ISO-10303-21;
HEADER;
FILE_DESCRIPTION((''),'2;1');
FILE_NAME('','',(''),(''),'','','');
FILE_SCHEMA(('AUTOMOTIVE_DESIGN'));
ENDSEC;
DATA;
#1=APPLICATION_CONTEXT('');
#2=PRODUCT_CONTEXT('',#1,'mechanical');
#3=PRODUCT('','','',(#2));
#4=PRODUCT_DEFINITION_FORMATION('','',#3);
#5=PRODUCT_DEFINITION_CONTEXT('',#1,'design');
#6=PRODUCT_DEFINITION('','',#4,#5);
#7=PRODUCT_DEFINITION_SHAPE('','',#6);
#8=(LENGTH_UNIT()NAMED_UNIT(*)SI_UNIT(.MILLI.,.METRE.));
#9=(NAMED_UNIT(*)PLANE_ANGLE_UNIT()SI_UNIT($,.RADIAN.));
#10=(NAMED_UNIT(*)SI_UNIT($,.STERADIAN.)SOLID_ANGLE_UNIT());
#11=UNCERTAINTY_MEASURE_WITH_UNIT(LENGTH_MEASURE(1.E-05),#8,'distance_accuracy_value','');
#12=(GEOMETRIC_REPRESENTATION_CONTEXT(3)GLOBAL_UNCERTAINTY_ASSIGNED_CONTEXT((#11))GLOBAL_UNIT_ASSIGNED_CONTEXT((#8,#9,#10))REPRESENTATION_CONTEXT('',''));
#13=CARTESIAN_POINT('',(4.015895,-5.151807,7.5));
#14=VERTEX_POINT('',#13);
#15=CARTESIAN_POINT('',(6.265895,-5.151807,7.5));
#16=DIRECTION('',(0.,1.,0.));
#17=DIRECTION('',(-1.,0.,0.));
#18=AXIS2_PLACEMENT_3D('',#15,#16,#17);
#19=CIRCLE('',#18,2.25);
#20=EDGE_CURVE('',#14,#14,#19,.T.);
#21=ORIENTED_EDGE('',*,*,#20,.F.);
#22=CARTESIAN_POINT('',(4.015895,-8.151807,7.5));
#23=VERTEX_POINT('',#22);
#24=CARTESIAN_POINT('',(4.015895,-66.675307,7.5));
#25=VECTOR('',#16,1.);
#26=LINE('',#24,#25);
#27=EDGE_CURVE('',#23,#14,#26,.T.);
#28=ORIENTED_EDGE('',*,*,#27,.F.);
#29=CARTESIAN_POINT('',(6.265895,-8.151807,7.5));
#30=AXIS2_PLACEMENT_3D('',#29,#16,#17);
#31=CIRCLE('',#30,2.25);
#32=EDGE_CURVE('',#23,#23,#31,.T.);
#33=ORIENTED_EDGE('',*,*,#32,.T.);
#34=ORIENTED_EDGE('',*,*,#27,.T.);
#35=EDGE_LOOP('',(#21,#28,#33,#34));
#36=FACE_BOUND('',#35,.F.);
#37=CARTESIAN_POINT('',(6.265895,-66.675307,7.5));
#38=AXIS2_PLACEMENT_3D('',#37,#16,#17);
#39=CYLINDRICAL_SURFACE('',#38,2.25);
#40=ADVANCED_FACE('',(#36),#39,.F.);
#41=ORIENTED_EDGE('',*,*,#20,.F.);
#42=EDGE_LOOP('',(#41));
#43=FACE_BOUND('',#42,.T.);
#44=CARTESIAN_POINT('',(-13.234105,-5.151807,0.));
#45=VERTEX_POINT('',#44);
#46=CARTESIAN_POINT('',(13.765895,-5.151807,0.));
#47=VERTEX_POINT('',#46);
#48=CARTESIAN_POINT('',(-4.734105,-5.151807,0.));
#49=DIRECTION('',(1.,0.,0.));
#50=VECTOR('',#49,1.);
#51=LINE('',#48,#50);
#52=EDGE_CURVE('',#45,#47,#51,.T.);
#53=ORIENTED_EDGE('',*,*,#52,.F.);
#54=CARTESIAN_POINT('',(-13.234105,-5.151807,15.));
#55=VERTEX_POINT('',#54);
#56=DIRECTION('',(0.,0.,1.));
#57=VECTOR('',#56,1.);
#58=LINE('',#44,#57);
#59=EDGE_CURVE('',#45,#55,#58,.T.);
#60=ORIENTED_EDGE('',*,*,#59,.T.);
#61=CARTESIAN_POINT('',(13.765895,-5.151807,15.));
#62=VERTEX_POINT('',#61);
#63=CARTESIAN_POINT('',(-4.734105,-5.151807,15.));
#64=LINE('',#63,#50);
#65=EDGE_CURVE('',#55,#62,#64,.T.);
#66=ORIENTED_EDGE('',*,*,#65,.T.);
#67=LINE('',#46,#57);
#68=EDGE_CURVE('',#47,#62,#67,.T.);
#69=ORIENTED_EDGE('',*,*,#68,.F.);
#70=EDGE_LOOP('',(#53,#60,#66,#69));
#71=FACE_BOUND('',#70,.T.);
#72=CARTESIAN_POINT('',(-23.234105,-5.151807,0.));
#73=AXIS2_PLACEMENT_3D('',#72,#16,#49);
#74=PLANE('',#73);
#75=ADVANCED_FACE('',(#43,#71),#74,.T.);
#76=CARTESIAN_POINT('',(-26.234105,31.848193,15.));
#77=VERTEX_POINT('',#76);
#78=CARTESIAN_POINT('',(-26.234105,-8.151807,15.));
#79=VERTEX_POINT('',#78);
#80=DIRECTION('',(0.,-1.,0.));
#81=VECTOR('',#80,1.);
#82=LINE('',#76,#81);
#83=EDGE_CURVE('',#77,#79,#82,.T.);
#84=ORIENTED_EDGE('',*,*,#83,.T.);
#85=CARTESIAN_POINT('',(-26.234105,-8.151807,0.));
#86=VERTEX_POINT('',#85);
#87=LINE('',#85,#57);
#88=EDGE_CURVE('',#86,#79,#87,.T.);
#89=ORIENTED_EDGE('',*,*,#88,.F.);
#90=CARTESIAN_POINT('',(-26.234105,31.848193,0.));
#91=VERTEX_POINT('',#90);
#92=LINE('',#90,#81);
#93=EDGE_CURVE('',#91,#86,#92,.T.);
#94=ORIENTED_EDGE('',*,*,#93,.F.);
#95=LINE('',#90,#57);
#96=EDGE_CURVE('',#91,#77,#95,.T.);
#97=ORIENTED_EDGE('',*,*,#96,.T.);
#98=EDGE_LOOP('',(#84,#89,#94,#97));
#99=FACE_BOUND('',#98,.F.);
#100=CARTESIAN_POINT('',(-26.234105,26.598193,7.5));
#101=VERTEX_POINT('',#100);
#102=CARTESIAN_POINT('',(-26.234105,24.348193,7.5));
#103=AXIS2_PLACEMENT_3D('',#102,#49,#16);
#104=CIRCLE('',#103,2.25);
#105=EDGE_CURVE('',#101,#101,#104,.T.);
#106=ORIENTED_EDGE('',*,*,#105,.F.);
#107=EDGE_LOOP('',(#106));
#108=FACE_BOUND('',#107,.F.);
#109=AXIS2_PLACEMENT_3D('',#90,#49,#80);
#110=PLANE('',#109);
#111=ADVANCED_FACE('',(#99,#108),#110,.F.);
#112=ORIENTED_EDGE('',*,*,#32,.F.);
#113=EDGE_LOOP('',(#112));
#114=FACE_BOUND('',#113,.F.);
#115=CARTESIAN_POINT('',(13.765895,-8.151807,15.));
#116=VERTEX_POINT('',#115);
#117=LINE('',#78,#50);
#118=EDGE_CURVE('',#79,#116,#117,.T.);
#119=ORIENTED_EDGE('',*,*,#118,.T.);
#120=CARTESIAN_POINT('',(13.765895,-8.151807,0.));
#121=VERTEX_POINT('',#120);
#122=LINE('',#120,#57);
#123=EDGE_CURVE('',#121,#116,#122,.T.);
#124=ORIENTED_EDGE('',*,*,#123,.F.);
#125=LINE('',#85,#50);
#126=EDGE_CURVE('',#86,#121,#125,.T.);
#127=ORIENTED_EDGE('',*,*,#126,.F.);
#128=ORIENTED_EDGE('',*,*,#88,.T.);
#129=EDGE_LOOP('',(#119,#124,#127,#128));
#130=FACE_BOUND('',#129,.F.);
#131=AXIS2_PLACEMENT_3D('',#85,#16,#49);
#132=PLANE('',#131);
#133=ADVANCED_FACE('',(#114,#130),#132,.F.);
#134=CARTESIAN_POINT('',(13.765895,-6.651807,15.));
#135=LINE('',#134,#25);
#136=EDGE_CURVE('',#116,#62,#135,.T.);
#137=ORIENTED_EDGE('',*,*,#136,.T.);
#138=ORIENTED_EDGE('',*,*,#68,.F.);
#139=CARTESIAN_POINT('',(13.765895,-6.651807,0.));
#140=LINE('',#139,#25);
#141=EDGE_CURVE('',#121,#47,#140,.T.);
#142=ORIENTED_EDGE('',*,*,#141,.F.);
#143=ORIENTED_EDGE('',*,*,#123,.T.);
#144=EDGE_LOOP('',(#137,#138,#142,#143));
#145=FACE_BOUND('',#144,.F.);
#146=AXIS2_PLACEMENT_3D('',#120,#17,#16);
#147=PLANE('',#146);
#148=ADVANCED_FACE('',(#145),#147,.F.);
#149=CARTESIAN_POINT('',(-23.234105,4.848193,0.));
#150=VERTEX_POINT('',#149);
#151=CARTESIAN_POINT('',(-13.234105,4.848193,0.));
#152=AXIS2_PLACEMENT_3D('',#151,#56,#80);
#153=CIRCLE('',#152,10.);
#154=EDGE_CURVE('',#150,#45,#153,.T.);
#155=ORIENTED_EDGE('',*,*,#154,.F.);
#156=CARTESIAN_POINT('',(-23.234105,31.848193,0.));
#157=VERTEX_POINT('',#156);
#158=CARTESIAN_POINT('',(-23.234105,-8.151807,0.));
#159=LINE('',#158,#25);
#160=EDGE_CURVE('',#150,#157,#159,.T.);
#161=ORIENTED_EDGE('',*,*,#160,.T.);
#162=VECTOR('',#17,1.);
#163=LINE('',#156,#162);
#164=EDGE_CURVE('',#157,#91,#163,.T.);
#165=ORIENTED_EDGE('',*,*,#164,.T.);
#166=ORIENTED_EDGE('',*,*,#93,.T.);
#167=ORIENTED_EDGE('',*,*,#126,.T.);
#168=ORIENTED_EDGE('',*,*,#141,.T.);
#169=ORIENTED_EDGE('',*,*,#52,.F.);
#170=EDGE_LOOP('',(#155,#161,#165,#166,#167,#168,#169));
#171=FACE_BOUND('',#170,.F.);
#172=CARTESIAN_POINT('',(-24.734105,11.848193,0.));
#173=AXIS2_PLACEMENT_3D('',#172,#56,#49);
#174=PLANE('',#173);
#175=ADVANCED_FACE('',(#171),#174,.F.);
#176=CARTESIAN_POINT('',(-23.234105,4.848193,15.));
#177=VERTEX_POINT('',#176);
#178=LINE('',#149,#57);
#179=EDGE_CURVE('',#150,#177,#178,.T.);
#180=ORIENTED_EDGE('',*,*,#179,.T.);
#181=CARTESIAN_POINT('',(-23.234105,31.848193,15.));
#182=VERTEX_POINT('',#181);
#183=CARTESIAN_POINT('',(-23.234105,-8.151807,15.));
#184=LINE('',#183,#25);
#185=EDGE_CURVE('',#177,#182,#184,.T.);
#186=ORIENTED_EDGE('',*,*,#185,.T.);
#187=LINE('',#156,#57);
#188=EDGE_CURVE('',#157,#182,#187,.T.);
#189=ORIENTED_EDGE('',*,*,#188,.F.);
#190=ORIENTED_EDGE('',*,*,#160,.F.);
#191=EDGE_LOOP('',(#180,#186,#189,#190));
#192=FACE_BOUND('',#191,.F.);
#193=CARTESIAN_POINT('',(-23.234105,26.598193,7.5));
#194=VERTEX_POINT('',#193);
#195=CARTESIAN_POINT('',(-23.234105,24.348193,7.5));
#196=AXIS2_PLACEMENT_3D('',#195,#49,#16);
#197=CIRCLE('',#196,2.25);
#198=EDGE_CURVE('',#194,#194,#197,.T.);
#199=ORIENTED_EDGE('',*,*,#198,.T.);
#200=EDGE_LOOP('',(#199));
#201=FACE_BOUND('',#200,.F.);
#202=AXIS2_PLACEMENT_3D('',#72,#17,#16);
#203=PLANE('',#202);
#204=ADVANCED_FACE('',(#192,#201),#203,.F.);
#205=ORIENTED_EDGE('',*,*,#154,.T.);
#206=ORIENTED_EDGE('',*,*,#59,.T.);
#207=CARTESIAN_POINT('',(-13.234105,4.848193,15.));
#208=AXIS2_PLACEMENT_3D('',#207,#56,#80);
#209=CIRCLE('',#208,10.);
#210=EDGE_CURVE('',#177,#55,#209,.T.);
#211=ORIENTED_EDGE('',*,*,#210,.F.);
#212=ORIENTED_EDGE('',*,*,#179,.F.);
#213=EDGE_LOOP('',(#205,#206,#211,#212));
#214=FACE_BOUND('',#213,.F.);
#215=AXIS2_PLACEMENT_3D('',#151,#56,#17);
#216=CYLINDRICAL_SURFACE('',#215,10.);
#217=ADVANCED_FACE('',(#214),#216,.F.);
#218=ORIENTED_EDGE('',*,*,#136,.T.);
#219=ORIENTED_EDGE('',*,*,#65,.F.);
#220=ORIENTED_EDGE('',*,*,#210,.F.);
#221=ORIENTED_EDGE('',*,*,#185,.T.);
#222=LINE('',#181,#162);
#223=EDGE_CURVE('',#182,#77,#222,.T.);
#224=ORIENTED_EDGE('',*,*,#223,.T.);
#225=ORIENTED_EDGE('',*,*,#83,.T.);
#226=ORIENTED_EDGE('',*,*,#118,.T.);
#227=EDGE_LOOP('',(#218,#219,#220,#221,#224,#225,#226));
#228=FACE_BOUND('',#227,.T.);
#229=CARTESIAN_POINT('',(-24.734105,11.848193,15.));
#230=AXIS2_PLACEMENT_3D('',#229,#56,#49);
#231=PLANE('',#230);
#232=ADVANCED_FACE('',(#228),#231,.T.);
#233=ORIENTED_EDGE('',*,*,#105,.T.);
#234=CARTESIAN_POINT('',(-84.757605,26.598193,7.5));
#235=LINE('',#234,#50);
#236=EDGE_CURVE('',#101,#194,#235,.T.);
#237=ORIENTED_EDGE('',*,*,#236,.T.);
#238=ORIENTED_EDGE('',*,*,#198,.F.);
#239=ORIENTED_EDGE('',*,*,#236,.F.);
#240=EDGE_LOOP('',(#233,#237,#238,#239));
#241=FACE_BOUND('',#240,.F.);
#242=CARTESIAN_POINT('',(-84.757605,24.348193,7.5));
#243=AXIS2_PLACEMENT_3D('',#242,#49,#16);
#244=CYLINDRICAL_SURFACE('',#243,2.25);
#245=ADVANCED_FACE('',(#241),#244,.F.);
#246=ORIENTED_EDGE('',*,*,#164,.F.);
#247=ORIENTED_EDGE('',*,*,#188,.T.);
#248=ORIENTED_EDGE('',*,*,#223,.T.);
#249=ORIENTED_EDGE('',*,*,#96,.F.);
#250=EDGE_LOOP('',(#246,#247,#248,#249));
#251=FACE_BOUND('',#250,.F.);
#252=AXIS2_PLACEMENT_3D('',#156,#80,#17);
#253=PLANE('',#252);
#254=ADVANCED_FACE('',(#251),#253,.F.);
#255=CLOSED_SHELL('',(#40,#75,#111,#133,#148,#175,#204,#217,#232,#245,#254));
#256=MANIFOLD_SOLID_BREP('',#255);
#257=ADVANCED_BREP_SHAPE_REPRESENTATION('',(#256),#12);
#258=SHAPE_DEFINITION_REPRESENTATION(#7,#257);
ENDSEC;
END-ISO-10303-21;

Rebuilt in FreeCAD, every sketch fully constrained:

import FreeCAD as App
import Part
import Sketcher

V = App.Vector


def edges_at(feature, points):
    """Names of the edges that pass closest to the given points."""
    edges = feature.Shape.Edges
    near = lambda p: min(range(len(edges)), key=lambda i: edges[i].distToShape(Part.Vertex(*p))[0])
    return sorted({f"Edge{near(p) + 1}" for p in points})


def add_polygon(sketch, points):
    """Adds a closed chain of lines whose ends are joined by coincident constraints."""
    first, n = sketch.GeometryCount, len(points)
    for a, b in zip(points, points[1:] + points[:1]):
        sketch.addGeometry(Part.LineSegment(App.Vector(*a, 0), App.Vector(*b, 0)), False)
    for i in range(n):
        sketch.addConstraint(Sketcher.Constraint("Coincident", first + i, 2, first + (i + 1) % n, 1))

doc = App.newDocument("Part")
body = doc.addObject("PartDesign::Body", "Body")

sketch1 = doc.addObject("Sketcher::SketchObject", "Sketch")
body.addObject(sketch1)
sketch1.AttachmentSupport = (doc.XY_Plane, [""])
sketch1.MapMode = "FlatFace"
add_polygon(sketch1, [(-23.234105, 31.848193), (-26.234105, 31.848193), (-26.234105, -8.151807), (13.765895, -8.151807), (13.765895, -5.151807), (-23.234105, -5.151807)])
sketch1.addConstraint([
    Sketcher.Constraint("Horizontal", 0),
    Sketcher.Constraint("Vertical", 1),
    Sketcher.Constraint("Horizontal", 2),
    Sketcher.Constraint("Vertical", 3),
    Sketcher.Constraint("Horizontal", 4),
    Sketcher.Constraint("Vertical", 5),
    Sketcher.Constraint("Equal", 2, 1),
    Sketcher.Constraint("Equal", 0, 3),
    Sketcher.Constraint("DistanceX", 0, 2, 0, 1, 3.0),
    Sketcher.Constraint("DistanceX", 2, 1, 2, 2, 40.0),
    Sketcher.Constraint("DistanceX", 0, 2, -1, 1, 26.234105),
    Sketcher.Constraint("DistanceY", -1, 1, 0, 2, 31.848193),
])
pad1 = doc.addObject("PartDesign::Pad", "Pad")
body.addObject(pad1)
pad1.Profile = sketch1
pad1.Length = 15

sketch2 = doc.addObject("Sketcher::SketchObject", "Sketch001")
body.addObject(sketch2)
sketch2.AttachmentSupport = (doc.YZ_Plane, [""])
sketch2.MapMode = "FlatFace"
sketch2.AttachmentOffset = App.Placement(V(0, 0, -26.234105), App.Rotation())
sketch2.addGeometry(Part.Circle(V(24.348193, 7.5, 0), V(0, 0, 1), 2.25), False)
sketch2.addConstraint([
    Sketcher.Constraint("Diameter", 0, 4.5),
    Sketcher.Constraint("DistanceY", -1, 1, 0, 3, 7.5),
    Sketcher.Constraint("DistanceX", -1, 1, 0, 3, 24.348193),
])
doc.recompute()
hole = doc.addObject("PartDesign::Hole", "Hole")
body.addObject(hole)
hole.Profile = sketch2
hole.ThreadType = "None"
hole.Diameter = 4.5
hole.DepthType = "ThroughAll"
hole.Reversed = True

sketch3 = doc.addObject("Sketcher::SketchObject", "Sketch002")
body.addObject(sketch3)
sketch3.AttachmentSupport = (doc.XZ_Plane, [""])
sketch3.MapMode = "FlatFace"
sketch3.AttachmentOffset = App.Placement(V(0, 0, 8.151807), App.Rotation())
sketch3.addGeometry(Part.Circle(V(6.265895, 7.5, 0), V(0, 0, 1), 2.25), False)
sketch3.addConstraint([
    Sketcher.Constraint("Diameter", 0, 4.5),
    Sketcher.Constraint("DistanceY", -1, 1, 0, 3, 7.5),
    Sketcher.Constraint("DistanceX", -1, 1, 0, 3, 6.265895),
])
doc.recompute()
hole2 = doc.addObject("PartDesign::Hole", "Hole001")
body.addObject(hole2)
hole2.Profile = sketch3
hole2.ThreadType = "None"
hole2.Diameter = 4.5
hole2.DepthType = "ThroughAll"
doc.recompute()

fillet = doc.addObject("PartDesign::Fillet", "Fillet")
body.addObject(fillet)
fillet.Base = (hole2, edges_at(hole2, [(-23.234, -5.152, 7.5)]))
fillet.Radius = 10

doc.recompute()
